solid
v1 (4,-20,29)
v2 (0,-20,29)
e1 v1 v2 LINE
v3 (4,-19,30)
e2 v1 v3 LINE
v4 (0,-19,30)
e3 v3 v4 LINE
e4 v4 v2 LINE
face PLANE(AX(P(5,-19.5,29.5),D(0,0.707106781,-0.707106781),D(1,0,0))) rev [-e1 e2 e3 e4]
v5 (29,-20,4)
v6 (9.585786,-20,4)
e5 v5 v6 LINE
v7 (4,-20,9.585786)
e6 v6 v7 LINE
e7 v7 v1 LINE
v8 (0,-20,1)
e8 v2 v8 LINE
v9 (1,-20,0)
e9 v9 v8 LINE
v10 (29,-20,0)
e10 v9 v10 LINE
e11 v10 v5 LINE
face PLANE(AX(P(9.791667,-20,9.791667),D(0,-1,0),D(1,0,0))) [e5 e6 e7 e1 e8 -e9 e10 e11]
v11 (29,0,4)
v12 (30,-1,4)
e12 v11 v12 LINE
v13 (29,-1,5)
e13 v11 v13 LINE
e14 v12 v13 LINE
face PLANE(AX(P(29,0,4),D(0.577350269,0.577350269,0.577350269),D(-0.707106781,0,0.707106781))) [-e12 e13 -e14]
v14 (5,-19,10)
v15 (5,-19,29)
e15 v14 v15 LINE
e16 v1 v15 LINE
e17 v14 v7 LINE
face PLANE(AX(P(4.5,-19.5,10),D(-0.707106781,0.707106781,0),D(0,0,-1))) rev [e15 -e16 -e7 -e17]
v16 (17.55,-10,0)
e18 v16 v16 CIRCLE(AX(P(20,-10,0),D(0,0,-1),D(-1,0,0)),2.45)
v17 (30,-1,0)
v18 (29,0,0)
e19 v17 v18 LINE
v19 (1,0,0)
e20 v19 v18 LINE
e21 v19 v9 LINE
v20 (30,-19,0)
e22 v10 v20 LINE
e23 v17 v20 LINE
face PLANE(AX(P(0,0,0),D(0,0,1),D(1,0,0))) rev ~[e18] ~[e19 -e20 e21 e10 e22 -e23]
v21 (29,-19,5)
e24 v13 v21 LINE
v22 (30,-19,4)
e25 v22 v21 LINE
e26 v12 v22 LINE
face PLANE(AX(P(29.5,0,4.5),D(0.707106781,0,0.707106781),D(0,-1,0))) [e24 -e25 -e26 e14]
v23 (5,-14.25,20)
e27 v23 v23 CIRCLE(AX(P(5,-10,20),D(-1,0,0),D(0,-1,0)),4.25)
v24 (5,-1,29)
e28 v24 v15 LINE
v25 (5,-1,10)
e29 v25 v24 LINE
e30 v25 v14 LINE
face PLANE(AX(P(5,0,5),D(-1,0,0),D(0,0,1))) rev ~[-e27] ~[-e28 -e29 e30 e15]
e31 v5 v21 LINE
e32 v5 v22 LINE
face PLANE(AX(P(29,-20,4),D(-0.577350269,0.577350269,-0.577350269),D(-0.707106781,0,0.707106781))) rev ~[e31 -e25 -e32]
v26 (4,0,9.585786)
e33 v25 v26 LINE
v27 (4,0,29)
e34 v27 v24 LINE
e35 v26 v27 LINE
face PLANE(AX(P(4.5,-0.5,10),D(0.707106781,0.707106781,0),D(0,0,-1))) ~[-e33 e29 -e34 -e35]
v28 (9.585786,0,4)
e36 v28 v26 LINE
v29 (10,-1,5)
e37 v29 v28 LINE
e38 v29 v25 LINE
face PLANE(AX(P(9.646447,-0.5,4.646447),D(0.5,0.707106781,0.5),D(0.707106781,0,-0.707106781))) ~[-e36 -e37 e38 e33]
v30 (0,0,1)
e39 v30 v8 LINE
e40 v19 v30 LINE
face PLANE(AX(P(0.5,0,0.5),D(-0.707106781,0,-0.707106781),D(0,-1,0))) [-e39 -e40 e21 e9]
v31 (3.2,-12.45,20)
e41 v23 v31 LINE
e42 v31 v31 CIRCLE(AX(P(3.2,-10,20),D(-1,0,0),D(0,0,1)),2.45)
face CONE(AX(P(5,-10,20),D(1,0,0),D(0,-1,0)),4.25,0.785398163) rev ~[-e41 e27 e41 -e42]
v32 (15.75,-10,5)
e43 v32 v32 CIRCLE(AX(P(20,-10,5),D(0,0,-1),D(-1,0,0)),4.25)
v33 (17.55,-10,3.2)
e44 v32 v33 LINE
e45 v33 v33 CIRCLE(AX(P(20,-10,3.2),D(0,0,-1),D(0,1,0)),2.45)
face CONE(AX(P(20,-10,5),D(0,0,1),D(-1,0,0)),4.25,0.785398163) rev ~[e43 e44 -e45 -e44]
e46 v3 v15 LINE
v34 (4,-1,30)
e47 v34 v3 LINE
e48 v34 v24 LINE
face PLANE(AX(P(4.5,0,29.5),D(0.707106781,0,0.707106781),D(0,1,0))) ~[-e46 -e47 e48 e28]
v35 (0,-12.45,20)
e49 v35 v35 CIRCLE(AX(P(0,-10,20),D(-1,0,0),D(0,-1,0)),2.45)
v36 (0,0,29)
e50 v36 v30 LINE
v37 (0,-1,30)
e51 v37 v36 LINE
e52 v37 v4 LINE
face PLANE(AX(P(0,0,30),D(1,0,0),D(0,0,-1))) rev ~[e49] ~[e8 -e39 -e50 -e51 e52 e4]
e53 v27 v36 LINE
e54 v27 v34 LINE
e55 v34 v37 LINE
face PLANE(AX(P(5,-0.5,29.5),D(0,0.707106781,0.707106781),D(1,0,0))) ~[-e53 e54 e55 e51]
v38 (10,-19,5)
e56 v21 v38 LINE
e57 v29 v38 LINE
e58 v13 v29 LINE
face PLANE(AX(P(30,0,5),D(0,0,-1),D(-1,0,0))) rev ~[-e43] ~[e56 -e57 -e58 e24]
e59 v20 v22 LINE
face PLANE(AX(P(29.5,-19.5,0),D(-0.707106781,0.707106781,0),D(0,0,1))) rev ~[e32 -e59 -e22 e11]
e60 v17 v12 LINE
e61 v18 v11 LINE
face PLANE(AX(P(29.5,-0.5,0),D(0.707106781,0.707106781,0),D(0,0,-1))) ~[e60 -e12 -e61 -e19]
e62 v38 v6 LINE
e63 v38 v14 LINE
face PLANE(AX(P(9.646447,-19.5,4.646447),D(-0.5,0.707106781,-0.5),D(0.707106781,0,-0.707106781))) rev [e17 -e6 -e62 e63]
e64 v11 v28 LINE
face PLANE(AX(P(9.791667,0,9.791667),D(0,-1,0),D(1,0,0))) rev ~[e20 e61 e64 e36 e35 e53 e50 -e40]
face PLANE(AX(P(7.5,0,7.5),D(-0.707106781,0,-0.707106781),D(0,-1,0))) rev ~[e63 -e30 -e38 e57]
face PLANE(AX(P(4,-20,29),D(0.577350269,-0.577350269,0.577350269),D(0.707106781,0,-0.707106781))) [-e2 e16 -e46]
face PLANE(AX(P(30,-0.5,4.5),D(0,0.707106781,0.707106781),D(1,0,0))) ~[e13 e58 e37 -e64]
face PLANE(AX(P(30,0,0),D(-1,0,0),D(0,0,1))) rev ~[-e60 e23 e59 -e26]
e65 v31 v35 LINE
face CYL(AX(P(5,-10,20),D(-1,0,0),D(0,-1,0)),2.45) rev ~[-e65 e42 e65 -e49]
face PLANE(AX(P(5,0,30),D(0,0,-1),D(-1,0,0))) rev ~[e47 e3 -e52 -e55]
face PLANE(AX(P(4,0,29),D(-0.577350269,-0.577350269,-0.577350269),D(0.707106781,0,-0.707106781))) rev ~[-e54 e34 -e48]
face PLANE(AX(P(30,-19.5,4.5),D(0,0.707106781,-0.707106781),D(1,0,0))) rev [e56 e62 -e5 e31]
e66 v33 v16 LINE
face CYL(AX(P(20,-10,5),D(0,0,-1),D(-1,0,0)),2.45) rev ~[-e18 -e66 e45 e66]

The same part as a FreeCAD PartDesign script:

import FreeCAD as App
import Part
import Sketcher


def edges_at(feature, points):
    """Names of the edges that pass closest to the given points."""
    edges = feature.Shape.Edges
    near = lambda p: min(range(len(edges)), key=lambda i: edges[i].distToShape(Part.Vertex(*p))[0])
    return sorted({f"Edge{near(p) + 1}" for p in points})


def add_polygon(sketch, points):
    """Adds a closed chain of lines whose ends are joined by coincident constraints."""
    first, n = sketch.GeometryCount, len(points)
    for a, b in zip(points, points[1:] + points[:1]):
        sketch.addGeometry(Part.LineSegment(App.Vector(*a, 0), App.Vector(*b, 0)), False)
    for i in range(n):
        sketch.addConstraint(Sketcher.Constraint("Coincident", first + i, 2, first + (i + 1) % n, 1))

doc = App.newDocument("Part")
body = doc.addObject("PartDesign::Body", "Body")

# Sketch on XZ plane
sketch1 = doc.addObject("Sketcher::SketchObject", "Sketch")
body.addObject(sketch1)
sketch1.AttachmentSupport = (doc.XZ_Plane, [""])
sketch1.MapMode = "FlatFace"
add_polygon(sketch1, [(0, 30), (0, 0), (30, 0), (30, 5), (5, 5), (5, 30)])  # lines 0-5
sketch1.addConstraint([
    Sketcher.Constraint("Vertical", 0),
    Sketcher.Constraint("Horizontal", 1),
    Sketcher.Constraint("Vertical", 2),
    Sketcher.Constraint("Horizontal", 3),
    Sketcher.Constraint("Vertical", 4),
    Sketcher.Constraint("Horizontal", 5),
    Sketcher.Constraint("Coincident", 0, 2, -1, 1),
    Sketcher.Constraint("Equal", 1, 0),
    Sketcher.Constraint("Equal", 5, 2),
    Sketcher.Constraint("DistanceX", 1, 1, 1, 2, 30.0),
    Sketcher.Constraint("DistanceX", 3, 2, 3, 1, 25.0),
])
pad1 = doc.addObject("PartDesign::Pad", "Pad")
body.addObject(pad1)
pad1.Profile = sketch1
pad1.Length = 20
doc.recompute()

chamfer = doc.addObject("PartDesign::Chamfer", "Chamfer")
body.addObject(chamfer)
chamfer.Base = (pad1, edges_at(pad1, [(5, -10, 5)]))
chamfer.Size = 5

# Sketch on YZ plane
sketch2 = doc.addObject("Sketcher::SketchObject", "Sketch001")
body.addObject(sketch2)
sketch2.AttachmentSupport = (doc.YZ_Plane, [""])
sketch2.MapMode = "FlatFace"
sketch2.AttachmentOffset = App.Placement(App.Vector(0, 0, 5), App.Rotation())
sketch2.addGeometry(Part.Circle(App.Vector(-10, 20, 0), App.Vector(0, 0, 1), 2.45), False)
sketch2.addConstraint([
    Sketcher.Constraint("Diameter", 0, 4.9),
    Sketcher.Constraint("DistanceX", 0, 3, -1, 1, 10.0),
    Sketcher.Constraint("DistanceY", -1, 1, 0, 3, 20.0),
])
doc.recompute()
hole = doc.addObject("PartDesign::Hole", "Hole")
body.addObject(hole)
hole.Profile = sketch2
hole.ThreadType = "None"
hole.Diameter = 4.9
hole.DepthType = "Dimension"
hole.Depth = 16
hole.DrillPoint = "Angled"
hole.DrillPointAngle = 118
hole.HoleCutType = "Countersink"
hole.HoleCutDiameter = 8.5
hole.HoleCutCountersinkAngle = 90

# Sketch on XY plane
sketch3 = doc.addObject("Sketcher::SketchObject", "Sketch002")
body.addObject(sketch3)
sketch3.AttachmentSupport = (doc.XY_Plane, [""])
sketch3.MapMode = "FlatFace"
sketch3.AttachmentOffset = App.Placement(App.Vector(0, 0, 5), App.Rotation())
sketch3.addGeometry(Part.Circle(App.Vector(20, -10, 0), App.Vector(0, 0, 1), 2.45), False)
sketch3.addConstraint([
    Sketcher.Constraint("Diameter", 0, 4.9),
    Sketcher.Constraint("DistanceX", -1, 1, 0, 3, 20.0),
    Sketcher.Constraint("DistanceY", 0, 3, -1, 1, 10.0),
])
doc.recompute()
hole2 = doc.addObject("PartDesign::Hole", "Hole001")
body.addObject(hole2)
hole2.Profile = sketch3
hole2.ThreadType = "None"
hole2.Diameter = 4.9
hole2.DepthType = "Dimension"
hole2.Depth = 16
hole2.DrillPoint = "Angled"
hole2.DrillPointAngle = 118
hole2.HoleCutType = "Countersink"
hole2.HoleCutDiameter = 8.5
hole2.HoleCutCountersinkAngle = 90
doc.recompute()

chamfer2 = doc.addObject("PartDesign::Chamfer", "Chamfer001")
body.addObject(chamfer2)
chamfer2.Base = (hole2, edges_at(hole2, [
    (30, -10, 5),
    (5, -10, 30),
    (30, -20, 2.5),
    (20, -20, 5),
    (7.5, -20, 7.5),
    (2.5, -20, 30),
    (30, 0, 2.5),
    (20, 0, 5),
    (7.5, 0, 7.5),
    (2.5, 0, 30),
    (5, -20, 20),
    (5, 0, 20),
]))
chamfer2.Size = 1
doc.recompute()

chamfer3 = doc.addObject("PartDesign::Chamfer", "Chamfer002")
body.addObject(chamfer3)
chamfer3.Base = (chamfer2, edges_at(chamfer2, [(0, -10, 0)]))
chamfer3.Size = 1

doc.recompute()
